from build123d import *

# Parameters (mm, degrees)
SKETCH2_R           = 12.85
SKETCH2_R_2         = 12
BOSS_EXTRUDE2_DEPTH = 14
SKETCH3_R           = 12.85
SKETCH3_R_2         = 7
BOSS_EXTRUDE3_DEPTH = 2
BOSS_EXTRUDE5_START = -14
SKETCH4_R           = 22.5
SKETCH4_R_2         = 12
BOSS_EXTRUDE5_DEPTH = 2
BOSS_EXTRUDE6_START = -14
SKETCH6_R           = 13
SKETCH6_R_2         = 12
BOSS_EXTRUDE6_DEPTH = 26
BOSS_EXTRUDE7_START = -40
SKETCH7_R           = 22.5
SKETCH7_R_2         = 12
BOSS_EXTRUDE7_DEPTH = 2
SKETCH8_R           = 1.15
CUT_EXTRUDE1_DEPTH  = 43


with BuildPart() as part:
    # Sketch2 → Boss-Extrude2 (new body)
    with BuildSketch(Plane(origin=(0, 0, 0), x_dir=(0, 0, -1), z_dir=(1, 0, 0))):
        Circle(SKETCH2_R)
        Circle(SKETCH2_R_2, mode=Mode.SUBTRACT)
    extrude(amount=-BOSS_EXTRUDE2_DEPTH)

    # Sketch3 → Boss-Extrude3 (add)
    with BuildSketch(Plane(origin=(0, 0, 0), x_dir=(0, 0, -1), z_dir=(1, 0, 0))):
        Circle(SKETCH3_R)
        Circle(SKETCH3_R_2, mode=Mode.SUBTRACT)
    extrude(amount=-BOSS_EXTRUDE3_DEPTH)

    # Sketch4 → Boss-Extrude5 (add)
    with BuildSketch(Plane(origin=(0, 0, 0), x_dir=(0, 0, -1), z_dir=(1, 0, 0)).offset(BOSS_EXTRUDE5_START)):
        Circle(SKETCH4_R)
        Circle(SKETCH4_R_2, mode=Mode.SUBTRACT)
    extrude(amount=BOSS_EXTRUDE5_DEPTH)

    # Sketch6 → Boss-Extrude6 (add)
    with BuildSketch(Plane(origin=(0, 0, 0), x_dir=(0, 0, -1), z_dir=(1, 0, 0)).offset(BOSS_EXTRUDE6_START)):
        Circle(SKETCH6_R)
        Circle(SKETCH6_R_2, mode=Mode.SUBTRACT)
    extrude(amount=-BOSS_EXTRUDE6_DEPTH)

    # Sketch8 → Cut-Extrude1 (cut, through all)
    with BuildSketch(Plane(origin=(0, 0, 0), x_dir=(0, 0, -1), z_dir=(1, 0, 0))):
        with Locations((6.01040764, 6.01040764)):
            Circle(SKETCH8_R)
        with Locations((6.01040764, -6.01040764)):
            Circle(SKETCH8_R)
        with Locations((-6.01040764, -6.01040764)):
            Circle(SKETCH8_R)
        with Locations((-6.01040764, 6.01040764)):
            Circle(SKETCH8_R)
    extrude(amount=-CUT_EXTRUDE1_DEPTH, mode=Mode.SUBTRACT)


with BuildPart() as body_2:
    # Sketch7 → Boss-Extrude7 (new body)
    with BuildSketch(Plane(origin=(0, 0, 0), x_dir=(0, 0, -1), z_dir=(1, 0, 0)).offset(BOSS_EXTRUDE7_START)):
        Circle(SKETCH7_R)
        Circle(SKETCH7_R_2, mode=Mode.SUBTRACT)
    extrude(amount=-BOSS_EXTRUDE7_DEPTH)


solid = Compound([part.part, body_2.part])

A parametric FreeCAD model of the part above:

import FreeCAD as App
import Part
import Sketcher

doc = App.newDocument("Part")
body = doc.addObject("PartDesign::Body", "Body")

sketch1 = body.newObject("Sketcher::SketchObject", "Sketch")
sketch1.AttachmentSupport = (doc.getObject("YZ_Plane"), [""])
sketch1.MapMode = "FlatFace"
sketch1.addGeometry(Part.Circle(App.Vector(0, 0, 0), App.Vector(0, 0, 1), 12.85), False)
sketch1.addGeometry(Part.Circle(App.Vector(0, 0, 0), App.Vector(0, 0, 1), 12), False)
sketch1.addConstraint(Sketcher.Constraint("Coincident", 0, 3, -1, 1))
sketch1.addConstraint(Sketcher.Constraint("Coincident", 1, 3, -1, 1))
sketch1.addConstraint(Sketcher.Constraint("Diameter", 1, 24.0))
sketch1.addConstraint(Sketcher.Constraint("Diameter", 0, 25.7))
pad1 = body.newObject("PartDesign::Pad", "Pad")
pad1.Profile = sketch1
pad1.Length = 14
pad1.Reversed = True

sketch2 = body.newObject("Sketcher::SketchObject", "Sketch001")
sketch2.AttachmentSupport = (doc.getObject("YZ_Plane"), [""])
sketch2.MapMode = "FlatFace"
sketch2.addGeometry(Part.Circle(App.Vector(0, 0, 0), App.Vector(0, 0, 1), 12.85), False)
sketch2.addGeometry(Part.Circle(App.Vector(0, 0, 0), App.Vector(0, 0, 1), 7), False)
sketch2.addConstraint(Sketcher.Constraint("Coincident", 0, 3, -1, 1))
sketch2.addConstraint(Sketcher.Constraint("Coincident", 1, 3, -1, 1))
sketch2.addConstraint(Sketcher.Constraint("Diameter", 1, 14.0))
sketch2.addConstraint(Sketcher.Constraint("Diameter", 0, 25.7))
pad2 = body.newObject("PartDesign::Pad", "Pad001")
pad2.Profile = sketch2
pad2.Length = 2
pad2.Reversed = True

sketch3 = body.newObject("Sketcher::SketchObject", "Sketch002")
sketch3.AttachmentSupport = (doc.getObject("YZ_Plane"), [""])
sketch3.MapMode = "FlatFace"
sketch3.AttachmentOffset = App.Placement(App.Vector(0, 0, -14), App.Rotation())
sketch3.addGeometry(Part.Circle(App.Vector(0, 0, 0), App.Vector(0, 0, 1), 22.5), False)
sketch3.addGeometry(Part.Circle(App.Vector(0, 0, 0), App.Vector(0, 0, 1), 12), False)
sketch3.addConstraint(Sketcher.Constraint("Coincident", 0, 3, -1, 1))
sketch3.addConstraint(Sketcher.Constraint("Coincident", 1, 3, -1, 1))
sketch3.addConstraint(Sketcher.Constraint("Diameter", 0, 45.0))
sketch3.addConstraint(Sketcher.Constraint("Diameter", 1, 24.0))
pad3 = body.newObject("PartDesign::Pad", "Pad002")
pad3.Profile = sketch3
pad3.Length = 2

sketch4 = body.newObject("Sketcher::SketchObject", "Sketch003")
sketch4.AttachmentSupport = (doc.getObject("YZ_Plane"), [""])
sketch4.MapMode = "FlatFace"
sketch4.AttachmentOffset = App.Placement(App.Vector(0, 0, -14), App.Rotation())
sketch4.addGeometry(Part.Circle(App.Vector(0, 0, 0), App.Vector(0, 0, 1), 13), False)
sketch4.addGeometry(Part.Circle(App.Vector(0, 0, 0), App.Vector(0, 0, 1), 12), False)
sketch4.addConstraint(Sketcher.Constraint("Coincident", 0, 3, -1, 1))
sketch4.addConstraint(Sketcher.Constraint("Coincident", 1, 3, -1, 1))
sketch4.addConstraint(Sketcher.Constraint("Diameter", 0, 26.0))
sketch4.addConstraint(Sketcher.Constraint("Diameter", 1, 24.0))
pad4 = body.newObject("PartDesign::Pad", "Pad003")
pad4.Profile = sketch4
pad4.Length = 26
pad4.Reversed = True

sketch5 = body.newObject("Sketcher::SketchObject", "Sketch004")
sketch5.AttachmentSupport = (doc.getObject("YZ_Plane"), [""])
sketch5.MapMode = "FlatFace"
sketch5.addGeometry(Part.Circle(App.Vector(6.010408, -6.010408, 0), App.Vector(0, 0, 1), 1.15), False)
sketch5.addGeometry(Part.Circle(App.Vector(-6.010408, -6.010408, 0), App.Vector(0, 0, 1), 1.15), False)
sketch5.addGeometry(Part.Circle(App.Vector(-6.010408, 6.010408, 0), App.Vector(0, 0, 1), 1.15), False)
sketch5.addGeometry(Part.Circle(App.Vector(6.010408, 6.010408, 0), App.Vector(0, 0, 1), 1.15), False)
sketch5.addConstraint(Sketcher.Constraint("Equal", 0, 1))
sketch5.addConstraint(Sketcher.Constraint("Equal", 1, 2))
sketch5.addConstraint(Sketcher.Constraint("Equal", 2, 3))
sketch5.addConstraint(Sketcher.Constraint("Symmetric", 0, 3, 2, 3, -1, 1))
sketch5.addConstraint(Sketcher.Constraint("Symmetric", 1, 3, 3, 3, -1, 1))
sketch5.addConstraint(Sketcher.Constraint("Symmetric", 0, 3, 1, 3, -2))
sketch5.addConstraint(Sketcher.Constraint("Diameter", 0, 2.3))
sketch5.addConstraint(Sketcher.Constraint("DistanceX", -1, 1, 0, 3, 6.010408))
sketch5.addConstraint(Sketcher.Constraint("DistanceY", 0, 3, -1, 1, 6.010408))
pocket1 = body.newObject("PartDesign::Pocket", "Pocket")
pocket1.Profile = sketch5
pocket1.Type = "ThroughAll"
body2 = doc.addObject("PartDesign::Body", "Body001")

sketch6 = body2.newObject("Sketcher::SketchObject", "Sketch005")
sketch6.AttachmentSupport = (doc.getObject("YZ_Plane001"), [""])
sketch6.MapMode = "FlatFace"
sketch6.AttachmentOffset = App.Placement(App.Vector(0, 0, -40), App.Rotation())
sketch6.addGeometry(Part.Circle(App.Vector(0, 0, 0), App.Vector(0, 0, 1), 22.5), False)
sketch6.addGeometry(Part.Circle(App.Vector(0, 0, 0), App.Vector(0, 0, 1), 12), False)
sketch6.addConstraint(Sketcher.Constraint("Coincident", 0, 3, -1, 1))
sketch6.addConstraint(Sketcher.Constraint("Coincident", 1, 3, -1, 1))
sketch6.addConstraint(Sketcher.Constraint("Diameter", 0, 45.0))
sketch6.addConstraint(Sketcher.Constraint("Diameter", 1, 24.0))
pad5 = body2.newObject("PartDesign::Pad", "Pad004")
pad5.Profile = sketch6
pad5.Length = 2
pad5.Reversed = True

doc.recompute()
